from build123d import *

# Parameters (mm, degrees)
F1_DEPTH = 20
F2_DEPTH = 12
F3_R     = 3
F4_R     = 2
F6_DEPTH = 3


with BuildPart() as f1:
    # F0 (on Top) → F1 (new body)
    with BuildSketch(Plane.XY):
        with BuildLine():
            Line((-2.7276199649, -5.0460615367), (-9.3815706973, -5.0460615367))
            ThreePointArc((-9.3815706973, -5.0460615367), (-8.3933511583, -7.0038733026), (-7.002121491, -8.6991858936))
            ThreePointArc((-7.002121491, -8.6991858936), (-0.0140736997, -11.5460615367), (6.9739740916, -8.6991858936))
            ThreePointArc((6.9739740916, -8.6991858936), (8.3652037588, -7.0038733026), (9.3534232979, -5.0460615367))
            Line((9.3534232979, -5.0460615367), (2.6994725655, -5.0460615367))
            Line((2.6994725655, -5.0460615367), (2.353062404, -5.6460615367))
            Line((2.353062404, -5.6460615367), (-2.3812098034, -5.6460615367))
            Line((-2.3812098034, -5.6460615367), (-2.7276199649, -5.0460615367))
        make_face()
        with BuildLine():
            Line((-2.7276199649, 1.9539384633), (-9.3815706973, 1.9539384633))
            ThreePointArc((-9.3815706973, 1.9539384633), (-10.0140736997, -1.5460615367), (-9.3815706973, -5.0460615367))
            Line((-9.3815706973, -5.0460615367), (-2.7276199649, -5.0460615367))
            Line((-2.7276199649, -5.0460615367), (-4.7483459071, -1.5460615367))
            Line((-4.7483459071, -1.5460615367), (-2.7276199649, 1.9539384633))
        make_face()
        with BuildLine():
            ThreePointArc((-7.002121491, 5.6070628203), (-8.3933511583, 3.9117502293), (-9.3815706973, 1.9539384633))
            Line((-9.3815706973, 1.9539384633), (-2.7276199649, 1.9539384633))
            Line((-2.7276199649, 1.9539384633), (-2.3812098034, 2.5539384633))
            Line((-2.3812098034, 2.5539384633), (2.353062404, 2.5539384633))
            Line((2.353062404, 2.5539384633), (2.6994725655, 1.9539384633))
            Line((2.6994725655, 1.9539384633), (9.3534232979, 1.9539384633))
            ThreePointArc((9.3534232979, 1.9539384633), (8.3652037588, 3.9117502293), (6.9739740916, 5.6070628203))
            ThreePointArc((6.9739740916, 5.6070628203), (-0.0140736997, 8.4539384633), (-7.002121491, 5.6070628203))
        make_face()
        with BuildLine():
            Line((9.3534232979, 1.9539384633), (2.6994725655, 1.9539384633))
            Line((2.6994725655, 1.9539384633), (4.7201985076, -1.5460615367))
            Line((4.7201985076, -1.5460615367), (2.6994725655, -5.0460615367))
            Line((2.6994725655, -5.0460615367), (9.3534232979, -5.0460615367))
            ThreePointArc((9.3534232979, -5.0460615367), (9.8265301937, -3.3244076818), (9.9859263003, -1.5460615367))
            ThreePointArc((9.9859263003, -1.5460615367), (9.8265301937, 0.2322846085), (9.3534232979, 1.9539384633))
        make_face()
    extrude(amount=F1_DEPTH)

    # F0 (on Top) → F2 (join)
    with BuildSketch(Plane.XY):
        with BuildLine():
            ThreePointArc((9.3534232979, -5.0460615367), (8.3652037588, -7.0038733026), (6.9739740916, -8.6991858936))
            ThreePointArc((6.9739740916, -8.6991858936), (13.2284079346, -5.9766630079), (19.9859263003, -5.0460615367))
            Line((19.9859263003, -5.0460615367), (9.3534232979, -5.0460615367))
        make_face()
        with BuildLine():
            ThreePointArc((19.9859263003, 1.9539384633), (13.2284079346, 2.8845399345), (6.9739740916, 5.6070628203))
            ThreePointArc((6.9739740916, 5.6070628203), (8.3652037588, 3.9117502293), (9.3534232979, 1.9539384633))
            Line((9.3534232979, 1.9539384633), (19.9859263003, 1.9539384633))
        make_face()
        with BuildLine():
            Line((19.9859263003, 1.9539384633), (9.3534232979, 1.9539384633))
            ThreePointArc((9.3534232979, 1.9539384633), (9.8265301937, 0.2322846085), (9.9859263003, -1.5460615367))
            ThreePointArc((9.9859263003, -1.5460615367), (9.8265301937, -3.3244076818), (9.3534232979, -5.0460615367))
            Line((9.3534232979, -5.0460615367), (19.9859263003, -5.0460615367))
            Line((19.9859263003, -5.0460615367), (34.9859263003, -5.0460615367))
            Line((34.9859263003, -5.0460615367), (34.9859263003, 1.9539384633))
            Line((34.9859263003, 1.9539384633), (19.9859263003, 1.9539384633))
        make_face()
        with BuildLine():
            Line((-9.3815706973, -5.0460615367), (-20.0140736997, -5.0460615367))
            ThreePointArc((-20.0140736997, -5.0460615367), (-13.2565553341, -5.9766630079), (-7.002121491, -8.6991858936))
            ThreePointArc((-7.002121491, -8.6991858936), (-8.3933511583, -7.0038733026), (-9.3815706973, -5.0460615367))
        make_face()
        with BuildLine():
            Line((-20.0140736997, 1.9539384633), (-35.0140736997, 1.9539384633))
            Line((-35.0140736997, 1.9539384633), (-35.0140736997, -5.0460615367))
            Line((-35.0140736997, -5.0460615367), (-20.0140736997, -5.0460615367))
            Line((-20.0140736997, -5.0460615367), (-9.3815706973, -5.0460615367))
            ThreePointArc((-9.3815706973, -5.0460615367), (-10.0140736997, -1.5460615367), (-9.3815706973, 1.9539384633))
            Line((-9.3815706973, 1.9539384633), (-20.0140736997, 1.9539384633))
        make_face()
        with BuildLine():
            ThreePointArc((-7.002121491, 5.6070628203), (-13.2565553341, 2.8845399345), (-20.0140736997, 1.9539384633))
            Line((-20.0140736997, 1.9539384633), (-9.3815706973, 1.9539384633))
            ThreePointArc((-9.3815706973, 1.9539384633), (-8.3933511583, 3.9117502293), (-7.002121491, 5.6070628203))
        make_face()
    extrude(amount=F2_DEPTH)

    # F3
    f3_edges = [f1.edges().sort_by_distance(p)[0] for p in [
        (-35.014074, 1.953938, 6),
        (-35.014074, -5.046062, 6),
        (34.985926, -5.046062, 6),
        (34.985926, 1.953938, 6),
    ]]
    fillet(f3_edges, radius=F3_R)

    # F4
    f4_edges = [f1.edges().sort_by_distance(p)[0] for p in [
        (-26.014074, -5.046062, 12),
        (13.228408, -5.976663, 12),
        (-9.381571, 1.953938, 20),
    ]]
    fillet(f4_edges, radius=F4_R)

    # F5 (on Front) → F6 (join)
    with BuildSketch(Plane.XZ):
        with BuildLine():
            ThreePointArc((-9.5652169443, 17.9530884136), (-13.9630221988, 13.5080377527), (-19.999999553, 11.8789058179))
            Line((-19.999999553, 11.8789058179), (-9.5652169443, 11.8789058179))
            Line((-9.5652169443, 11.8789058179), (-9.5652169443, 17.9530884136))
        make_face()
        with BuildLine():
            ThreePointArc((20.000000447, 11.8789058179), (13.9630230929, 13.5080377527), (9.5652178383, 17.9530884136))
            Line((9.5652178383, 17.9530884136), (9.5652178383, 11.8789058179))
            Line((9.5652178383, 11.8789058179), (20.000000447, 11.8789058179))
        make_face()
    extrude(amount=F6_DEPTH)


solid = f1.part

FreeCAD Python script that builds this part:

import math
import FreeCAD as App
import Part
import Sketcher
Q = App.Units.Quantity


def edges_at(feature, points):
    """Names of the edges that pass closest to the given points."""
    edges = feature.Shape.Edges
    near = lambda p: min(range(len(edges)), key=lambda i: edges[i].distToShape(Part.Vertex(*p))[0])
    return sorted({f"Edge{near(p) + 1}" for p in points})

doc = App.newDocument("Part")
body = doc.addObject("PartDesign::Body", "Body")

# Sketch on XY plane
sketch1 = body.newObject("Sketcher::SketchObject", "Sketch")
sketch1.AttachmentSupport = (doc.getObject("XY_Plane"), [""])
sketch1.MapMode = "FlatFace"
sketch1.addGeometry(Part.ArcOfCircle(Part.Circle(App.Vector(0, -1.5, 0), App.Vector(0, 0, 1), 10), math.radians(-160), math.radians(-134)), False)
sketch1.addGeometry(Part.ArcOfCircle(Part.Circle(App.Vector(0, -1.5, 0), App.Vector(0, 0, 1), 10), math.radians(-134), math.radians(-46)), False)
sketch1.addGeometry(Part.ArcOfCircle(Part.Circle(App.Vector(0, -1.5, 0), App.Vector(0, 0, 1), 10), math.radians(-46), math.radians(-20)), False)
sketch1.addGeometry(Part.ArcOfCircle(Part.Circle(App.Vector(0, -1.5, 0), App.Vector(0, 0, 1), 10), math.radians(-20), math.radians(0)), False)
sketch1.addGeometry(Part.ArcOfCircle(Part.Circle(App.Vector(0, -1.5, 0), App.Vector(0, 0, 1), 10), math.radians(0), math.radians(20)), False)
sketch1.addGeometry(Part.ArcOfCircle(Part.Circle(App.Vector(0, -1.5, 0), App.Vector(0, 0, 1), 10), math.radians(20), math.radians(46)), False)
sketch1.addGeometry(Part.ArcOfCircle(Part.Circle(App.Vector(0, -1.5, 0), App.Vector(0, 0, 1), 10), math.radians(46), math.radians(134)), False)
sketch1.addGeometry(Part.ArcOfCircle(Part.Circle(App.Vector(0, -1.5, 0), App.Vector(0, 0, 1), 10), math.radians(134), math.radians(160)), False)
sketch1.addGeometry(Part.ArcOfCircle(Part.Circle(App.Vector(0, -1.5, 0), App.Vector(0, 0, 1), 10), math.radians(160), math.radians(200)), False)
sketch1.addGeometry(Part.LineSegment(App.Vector(2.7, -5, 0), App.Vector(2.4, -5.6, 0)), False)
sketch1.addGeometry(Part.LineSegment(App.Vector(2.4, -5.6, 0), App.Vector(-2.4, -5.6, 0)), False)
sketch1.addGeometry(Part.LineSegment(App.Vector(-2.4, -5.6, 0), App.Vector(-2.7, -5, 0)), False)
sketch1.addGeometry(Part.LineSegment(App.Vector(-2.7, -5, 0), App.Vector(-4.7, -1.5, 0)), False)
sketch1.addGeometry(Part.LineSegment(App.Vector(-4.7, -1.5, 0), App.Vector(-2.7, 2, 0)), False)
sketch1.addGeometry(Part.LineSegment(App.Vector(-2.7, 2, 0), App.Vector(-2.4, 2.6, 0)), False)
sketch1.addGeometry(Part.LineSegment(App.Vector(-2.4, 2.6, 0), App.Vector(2.4, 2.6, 0)), False)
sketch1.addGeometry(Part.LineSegment(App.Vector(2.4, 2.6, 0), App.Vector(2.7, 2, 0)), False)
sketch1.addGeometry(Part.LineSegment(App.Vector(2.7, 2, 0), App.Vector(4.7, -1.5, 0)), False)
sketch1.addGeometry(Part.LineSegment(App.Vector(4.7, -1.5, 0), App.Vector(2.7, -5, 0)), False)
sketch1.addConstraint(Sketcher.Constraint("Tangent", 0, 2, 1, 1))
sketch1.addConstraint(Sketcher.Constraint("Tangent", 1, 2, 2, 1))
sketch1.addConstraint(Sketcher.Constraint("Tangent", 2, 2, 3, 1))
sketch1.addConstraint(Sketcher.Constraint("Tangent", 3, 2, 4, 1))
sketch1.addConstraint(Sketcher.Constraint("Tangent", 4, 2, 5, 1))
sketch1.addConstraint(Sketcher.Constraint("Tangent", 5, 2, 6, 1))
sketch1.addConstraint(Sketcher.Constraint("Tangent", 6, 2, 7, 1))
sketch1.addConstraint(Sketcher.Constraint("Tangent", 7, 2, 8, 1))
sketch1.addConstraint(Sketcher.Constraint("Tangent", 8, 2, 0, 1))
sketch1.addConstraint(Sketcher.Constraint("Coincident", 9, 2, 10, 1))
sketch1.addConstraint(Sketcher.Constraint("Coincident", 10, 2, 11, 1))
sketch1.addConstraint(Sketcher.Constraint("Coincident", 11, 2, 12, 1))
sketch1.addConstraint(Sketcher.Constraint("Coincident", 12, 2, 13, 1))
sketch1.addConstraint(Sketcher.Constraint("Coincident", 13, 2, 14, 1))
sketch1.addConstraint(Sketcher.Constraint("Coincident", 14, 2, 15, 1))
sketch1.addConstraint(Sketcher.Constraint("Coincident", 15, 2, 16, 1))
sketch1.addConstraint(Sketcher.Constraint("Coincident", 16, 2, 17, 1))
sketch1.addConstraint(Sketcher.Constraint("Coincident", 17, 2, 18, 1))
sketch1.addConstraint(Sketcher.Constraint("Coincident", 18, 2, 9, 1))
sketch1.addConstraint(Sketcher.Constraint("Horizontal", 10))
sketch1.addConstraint(Sketcher.Constraint("Horizontal", 15))
sketch1.addConstraint(Sketcher.Constraint("Coincident", 2, 3, 0, 3))
sketch1.addConstraint(Sketcher.Constraint("Coincident", 4, 3, 0, 3))
sketch1.addConstraint(Sketcher.Constraint("Coincident", 6, 3, 0, 3))
sketch1.addConstraint(Sketcher.Constraint("Parallel", 11, 12))
sketch1.addConstraint(Sketcher.Constraint("Parallel", 9, 13))
sketch1.addConstraint(Sketcher.Constraint("Parallel", 13, 14))
sketch1.addConstraint(Sketcher.Constraint("Parallel", 12, 16))
sketch1.addConstraint(Sketcher.Constraint("Parallel", 16, 17))
sketch1.addConstraint(Sketcher.Constraint("Parallel", 14, 18))
sketch1.addConstraint(Sketcher.Constraint("Horizontal", 0, 2, 1, 2))
sketch1.addConstraint(Sketcher.Constraint("Horizontal", 8, 3, 3, 2))
sketch1.addConstraint(Sketcher.Constraint("Horizontal", 5, 2, 6, 2))
sketch1.addConstraint(Sketcher.Constraint("Horizontal", 4, 2, 7, 2))
sketch1.addConstraint(Sketcher.Constraint("Horizontal", 2, 2, 8, 2))
sketch1.addConstraint(Sketcher.Constraint("Horizontal", 8, 2, 11, 2))
sketch1.addConstraint(Sketcher.Constraint("Horizontal", 3, 2, 12, 2))
sketch1.addConstraint(Sketcher.Constraint("Horizontal", 7, 2, 13, 2))
sketch1.addConstraint(Sketcher.Constraint("Horizontal", 13, 2, 16, 2))
sketch1.addConstraint(Sketcher.Constraint("Horizontal", 12, 2, 17, 2))
sketch1.addConstraint(Sketcher.Constraint("Horizontal", 11, 2, 18, 2))
sketch1.addConstraint(Sketcher.Constraint("Vertical", 2, 2, 4, 2))
sketch1.addConstraint(Sketcher.Constraint("Vertical", 1, 2, 5, 2))
sketch1.addConstraint(Sketcher.Constraint("Vertical", 11, 2, 13, 2))
sketch1.addConstraint(Sketcher.Constraint("Vertical", 10, 2, 14, 2))
sketch1.addConstraint(Sketcher.Constraint("Radius", 0, 10.0))
sketch1.addConstraint(Sketcher.Constraint("Angle", 9, Q("-120 deg")))
sketch1.addConstraint(Sketcher.Constraint("DistanceY", 2, 2, 4, 2, 7.0))
sketch1.addConstraint(Sketcher.Constraint("DistanceY", 9, 2, 1, 3, 4.1))
sketch1.addConstraint(Sketcher.Constraint("DistanceX", -1, 1, 17, 2, 4.720199))
sketch1.addConstraint(Sketcher.Constraint("DistanceX", 10, 2, 10, 1, 4.734272))
sketch1.addConstraint(Sketcher.Constraint("DistanceY", 0, 3, -1, 1, 1.546062))
sketch1.addConstraint(Sketcher.Constraint("DistanceX", 0, 2, -1, 1, 7.002121))
sketch1.addConstraint(Sketcher.Constraint("DistanceX", 7, 2, -1, 1, 9.381571))
pad1 = body.newObject("PartDesign::Pad", "Pad")
pad1.Profile = sketch1
pad1.Length = 20

# Sketch on XY plane
sketch2 = body.newObject("Sketcher::SketchObject", "Sketch001")
sketch2.AttachmentSupport = (doc.getObject("XY_Plane"), [""])
sketch2.MapMode = "FlatFace"
sketch2.addGeometry(Part.ArcOfCircle(Part.Circle(App.Vector(0, -1.5, 0), App.Vector(0, 0, 1), 10), math.radians(-46), math.radians(-20)), False)
sketch2.addGeometry(Part.ArcOfCircle(Part.Circle(App.Vector(20, -30, 0), App.Vector(0, 0, 1), 25), math.radians(90), math.radians(121)), False)
sketch2.addGeometry(Part.LineSegment(App.Vector(20, -5, 0), App.Vector(35, -5, 0)), False)
sketch2.addGeometry(Part.LineSegment(App.Vector(35, -5, 0), App.Vector(35, 2, 0)), False)
sketch2.addGeometry(Part.LineSegment(App.Vector(35, 2, 0), App.Vector(20, 2, 0)), False)
sketch2.addGeometry(Part.ArcOfCircle(Part.Circle(App.Vector(20, 27, 0), App.Vector(0, 0, 1), 25), math.radians(-121), math.radians(-90)), False)
sketch2.addGeometry(Part.ArcOfCircle(Part.Circle(App.Vector(0, -1.5, 0), App.Vector(0, 0, 1), 10), math.radians(20), math.radians(46)), False)
sketch2.addGeometry(Part.ArcOfCircle(Part.Circle(App.Vector(0, -1.5, 0), App.Vector(0, 0, 1), 10), math.radians(0), math.radians(20)), False)
sketch2.addGeometry(Part.ArcOfCircle(Part.Circle(App.Vector(0, -1.5, 0), App.Vector(0, 0, 1), 10), math.radians(-20), math.radians(0)), False)
sketch2.addGeometry(Part.ArcOfCircle(Part.Circle(App.Vector(-20, -30, 0), App.Vector(0, 0, 1), 25), math.radians(59), math.radians(90)), False)
sketch2.addGeometry(Part.ArcOfCircle(Part.Circle(App.Vector(0, -1.5, 0), App.Vector(0, 0, 1), 10), math.radians(-160), math.radians(-134)), False)
sketch2.addGeometry(Part.ArcOfCircle(Part.Circle(App.Vector(0, -1.5, 0), App.Vector(0, 0, 1), 10), math.radians(160), math.radians(200)), False)
sketch2.addGeometry(Part.ArcOfCircle(Part.Circle(App.Vector(0, -1.5, 0), App.Vector(0, 0, 1), 10), math.radians(134), math.radians(160)), False)
sketch2.addGeometry(Part.ArcOfCircle(Part.Circle(App.Vector(-20, 27, 0), App.Vector(0, 0, 1), 25), math.radians(-90), math.radians(-59)), False)
sketch2.addGeometry(Part.LineSegment(App.Vector(-20, 2, 0), App.Vector(-35, 2, 0)), False)
sketch2.addGeometry(Part.LineSegment(App.Vector(-35, 2, 0), App.Vector(-35, -5, 0)), False)
sketch2.addGeometry(Part.LineSegment(App.Vector(-35, -5, 0), App.Vector(-20, -5, 0)), False)
sketch2.addConstraint(Sketcher.Constraint("Coincident", 0, 1, 1, 2))
sketch2.addConstraint(Sketcher.Constraint("Tangent", 1, 1, 2, 1))
sketch2.addConstraint(Sketcher.Constraint("Coincident", 2, 2, 3, 1))
sketch2.addConstraint(Sketcher.Constraint("Coincident", 3, 2, 4, 1))
sketch2.addConstraint(Sketcher.Constraint("Tangent", 4, 2, 5, 2))
sketch2.addConstraint(Sketcher.Constraint("Coincident", 5, 1, 6, 2))
sketch2.addConstraint(Sketcher.Constraint("Tangent", 6, 1, 7, 2))
sketch2.addConstraint(Sketcher.Constraint("Tangent", 7, 1, 8, 2))
sketch2.addConstraint(Sketcher.Constraint("Tangent", 8, 1, 0, 2))
sketch2.addConstraint(Sketcher.Constraint("Coincident", 9, 1, 10, 2))
sketch2.addConstraint(Sketcher.Constraint("Tangent", 10, 1, 11, 2))
sketch2.addConstraint(Sketcher.Constraint("Tangent", 11, 1, 12, 2))
sketch2.addConstraint(Sketcher.Constraint("Coincident", 12, 1, 13, 2))
sketch2.addConstraint(Sketcher.Constraint("Tangent", 13, 1, 14, 1))
sketch2.addConstraint(Sketcher.Constraint("Coincident", 14, 2, 15, 1))
sketch2.addConstraint(Sketcher.Constraint("Coincident", 15, 2, 16, 1))
sketch2.addConstraint(Sketcher.Constraint("Tangent", 16, 2, 9, 2))
sketch2.addConstraint(Sketcher.Constraint("Horizontal", 2))
sketch2.addConstraint(Sketcher.Constraint("Vertical", 3))
sketch2.addConstraint(Sketcher.Constraint("Horizontal", 4))
sketch2.addConstraint(Sketcher.Constraint("Horizontal", 14))
sketch2.addConstraint(Sketcher.Constraint("Vertical", 15))
sketch2.addConstraint(Sketcher.Constraint("Horizontal", 16))
sketch2.addConstraint(Sketcher.Constraint("Coincident", 6, 3, 0, 3))
sketch2.addConstraint(Sketcher.Constraint("Coincident", 10, 3, 0, 3))
sketch2.addConstraint(Sketcher.Constraint("Coincident", 12, 3, 0, 3))
sketch2.addConstraint(Sketcher.Constraint("Equal", 1, 5))
sketch2.addConstraint(Sketcher.Constraint("Equal", 0, 6))
sketch2.addConstraint(Sketcher.Constraint("Equal", 5, 9))
sketch2.addConstraint(Sketcher.Constraint("Equal", 8, 10))
sketch2.addConstraint(Sketcher.Constraint("Equal", 9, 13))
sketch2.addConstraint(Sketcher.Constraint("Horizontal", 1, 3, 9, 3))
sketch2.addConstraint(Sketcher.Constraint("Horizontal", 5, 3, 13, 3))
sketch2.addConstraint(Sketcher.Constraint("Horizontal", 4, 2, 6, 1))
sketch2.addConstraint(Sketcher.Constraint("Horizontal", 12, 3, 7, 1))
sketch2.addConstraint(Sketcher.Constraint("Horizontal", 2, 2, 8, 1))
sketch2.addConstraint(Sketcher.Constraint("Horizontal", 0, 1, 9, 1))
sketch2.addConstraint(Sketcher.Constraint("Horizontal", 8, 1, 10, 1))
sketch2.addConstraint(Sketcher.Constraint("Horizontal", 6, 1, 11, 1))
sketch2.addConstraint(Sketcher.Constraint("Horizontal", 5, 1, 12, 1))
sketch2.addConstraint(Sketcher.Constraint("Vertical", 1, 3, 5, 3))
sketch2.addConstraint(Sketcher.Constraint("Vertical", 0, 1, 5, 1))
sketch2.addConstraint(Sketcher.Constraint("Equal", 4, 14))
sketch2.addConstraint(Sketcher.Constraint("Radius", 0, 10.0))
sketch2.addConstraint(Sketcher.Constraint("Radius", 1, 25.0))
sketch2.addConstraint(Sketcher.Constraint("DistanceX", 2, 1, 2, 2, 15.0))
sketch2.addConstraint(Sketcher.Constraint("DistanceY", 3, 1, 3, 2, 7.0))
sketch2.addConstraint(Sketcher.Constraint("DistanceX", 0, 3, 1, 3, 20.0))
sketch2.addConstraint(Sketcher.Constraint("DistanceY", 0, 3, -1, 1, 1.546062))
sketch2.addConstraint(Sketcher.Constraint("DistanceX", 9, 1, -1, 1, 7.002121))
pad2 = body.newObject("PartDesign::Pad", "Pad001")
pad2.Profile = sketch2
pad2.Length = 12
doc.recompute()

fillet = body.newObject("PartDesign::Fillet", "Fillet")
fillet.Base = (pad2, edges_at(pad2, [
    (-35.014, 1.954, 6),
    (-35.014, -5.046, 6),
    (34.986, -5.046, 6),
    (34.986, 1.954, 6),
]))
fillet.Radius = 3
doc.recompute()

fillet2 = body.newObject("PartDesign::Fillet", "Fillet001")
fillet2.Base = (fillet, edges_at(fillet, [(-26.014, -5.046, 12), (13.228, -5.977, 12), (-10.014, -1.546, 20)]))
fillet2.Radius = 2

# Sketch on XZ plane
sketch3 = body.newObject("Sketcher::SketchObject", "Sketch002")
sketch3.AttachmentSupport = (doc.getObject("XZ_Plane"), [""])
sketch3.MapMode = "FlatFace"
sketch3.addGeometry(Part.ArcOfCircle(Part.Circle(App.Vector(-20, 24, 0), App.Vector(0, 0, 1), 12), math.radians(-90), math.radians(-30)), False)
sketch3.addGeometry(Part.LineSegment(App.Vector(-20, 12, 0), App.Vector(-10, 12, 0)), False)
sketch3.addGeometry(Part.LineSegment(App.Vector(-10, 12, 0), App.Vector(-10, 18, 0)), False)
sketch3.addGeometry(Part.ArcOfCircle(Part.Circle(App.Vector(20, 24, 0), App.Vector(0, 0, 1), 12), math.radians(-150), math.radians(-90)), False)
sketch3.addGeometry(Part.LineSegment(App.Vector(10, 18, 0), App.Vector(10, 12, 0)), False)
sketch3.addGeometry(Part.LineSegment(App.Vector(10, 12, 0), App.Vector(20, 12, 0)), False)
sketch3.addConstraint(Sketcher.Constraint("Tangent", 0, 1, 1, 1))
sketch3.addConstraint(Sketcher.Constraint("Coincident", 1, 2, 2, 1))
sketch3.addConstraint(Sketcher.Constraint("Coincident", 2, 2, 0, 2))
sketch3.addConstraint(Sketcher.Constraint("Coincident", 3, 1, 4, 1))
sketch3.addConstraint(Sketcher.Constraint("Coincident", 4, 2, 5, 1))
sketch3.addConstraint(Sketcher.Constraint("Tangent", 5, 2, 3, 2))
sketch3.addConstraint(Sketcher.Constraint("Horizontal", 1))
sketch3.addConstraint(Sketcher.Constraint("Vertical", 2))
sketch3.addConstraint(Sketcher.Constraint("Vertical", 4))
sketch3.addConstraint(Sketcher.Constraint("Horizontal", 5))
sketch3.addConstraint(Sketcher.Constraint("Equal", 0, 3))
sketch3.addConstraint(Sketcher.Constraint("Symmetric", 0, 3, 3, 3, -2))
sketch3.addConstraint(Sketcher.Constraint("Horizontal", 2, 2, 3, 1))
sketch3.addConstraint(Sketcher.Constraint("Radius", 0, 12.0))
sketch3.addConstraint(Sketcher.Constraint("DistanceX", 0, 3, -1, 1, 20.0))
sketch3.addConstraint(Sketcher.Constraint("DistanceX", 1, 1, 1, 2, 10.434783))
sketch3.addConstraint(Sketcher.Constraint("DistanceY", -1, 1, 2, 2, 17.953088))
pad3 = body.newObject("PartDesign::Pad", "Pad002")
pad3.Profile = sketch3
pad3.Length = 3

doc.recompute()
